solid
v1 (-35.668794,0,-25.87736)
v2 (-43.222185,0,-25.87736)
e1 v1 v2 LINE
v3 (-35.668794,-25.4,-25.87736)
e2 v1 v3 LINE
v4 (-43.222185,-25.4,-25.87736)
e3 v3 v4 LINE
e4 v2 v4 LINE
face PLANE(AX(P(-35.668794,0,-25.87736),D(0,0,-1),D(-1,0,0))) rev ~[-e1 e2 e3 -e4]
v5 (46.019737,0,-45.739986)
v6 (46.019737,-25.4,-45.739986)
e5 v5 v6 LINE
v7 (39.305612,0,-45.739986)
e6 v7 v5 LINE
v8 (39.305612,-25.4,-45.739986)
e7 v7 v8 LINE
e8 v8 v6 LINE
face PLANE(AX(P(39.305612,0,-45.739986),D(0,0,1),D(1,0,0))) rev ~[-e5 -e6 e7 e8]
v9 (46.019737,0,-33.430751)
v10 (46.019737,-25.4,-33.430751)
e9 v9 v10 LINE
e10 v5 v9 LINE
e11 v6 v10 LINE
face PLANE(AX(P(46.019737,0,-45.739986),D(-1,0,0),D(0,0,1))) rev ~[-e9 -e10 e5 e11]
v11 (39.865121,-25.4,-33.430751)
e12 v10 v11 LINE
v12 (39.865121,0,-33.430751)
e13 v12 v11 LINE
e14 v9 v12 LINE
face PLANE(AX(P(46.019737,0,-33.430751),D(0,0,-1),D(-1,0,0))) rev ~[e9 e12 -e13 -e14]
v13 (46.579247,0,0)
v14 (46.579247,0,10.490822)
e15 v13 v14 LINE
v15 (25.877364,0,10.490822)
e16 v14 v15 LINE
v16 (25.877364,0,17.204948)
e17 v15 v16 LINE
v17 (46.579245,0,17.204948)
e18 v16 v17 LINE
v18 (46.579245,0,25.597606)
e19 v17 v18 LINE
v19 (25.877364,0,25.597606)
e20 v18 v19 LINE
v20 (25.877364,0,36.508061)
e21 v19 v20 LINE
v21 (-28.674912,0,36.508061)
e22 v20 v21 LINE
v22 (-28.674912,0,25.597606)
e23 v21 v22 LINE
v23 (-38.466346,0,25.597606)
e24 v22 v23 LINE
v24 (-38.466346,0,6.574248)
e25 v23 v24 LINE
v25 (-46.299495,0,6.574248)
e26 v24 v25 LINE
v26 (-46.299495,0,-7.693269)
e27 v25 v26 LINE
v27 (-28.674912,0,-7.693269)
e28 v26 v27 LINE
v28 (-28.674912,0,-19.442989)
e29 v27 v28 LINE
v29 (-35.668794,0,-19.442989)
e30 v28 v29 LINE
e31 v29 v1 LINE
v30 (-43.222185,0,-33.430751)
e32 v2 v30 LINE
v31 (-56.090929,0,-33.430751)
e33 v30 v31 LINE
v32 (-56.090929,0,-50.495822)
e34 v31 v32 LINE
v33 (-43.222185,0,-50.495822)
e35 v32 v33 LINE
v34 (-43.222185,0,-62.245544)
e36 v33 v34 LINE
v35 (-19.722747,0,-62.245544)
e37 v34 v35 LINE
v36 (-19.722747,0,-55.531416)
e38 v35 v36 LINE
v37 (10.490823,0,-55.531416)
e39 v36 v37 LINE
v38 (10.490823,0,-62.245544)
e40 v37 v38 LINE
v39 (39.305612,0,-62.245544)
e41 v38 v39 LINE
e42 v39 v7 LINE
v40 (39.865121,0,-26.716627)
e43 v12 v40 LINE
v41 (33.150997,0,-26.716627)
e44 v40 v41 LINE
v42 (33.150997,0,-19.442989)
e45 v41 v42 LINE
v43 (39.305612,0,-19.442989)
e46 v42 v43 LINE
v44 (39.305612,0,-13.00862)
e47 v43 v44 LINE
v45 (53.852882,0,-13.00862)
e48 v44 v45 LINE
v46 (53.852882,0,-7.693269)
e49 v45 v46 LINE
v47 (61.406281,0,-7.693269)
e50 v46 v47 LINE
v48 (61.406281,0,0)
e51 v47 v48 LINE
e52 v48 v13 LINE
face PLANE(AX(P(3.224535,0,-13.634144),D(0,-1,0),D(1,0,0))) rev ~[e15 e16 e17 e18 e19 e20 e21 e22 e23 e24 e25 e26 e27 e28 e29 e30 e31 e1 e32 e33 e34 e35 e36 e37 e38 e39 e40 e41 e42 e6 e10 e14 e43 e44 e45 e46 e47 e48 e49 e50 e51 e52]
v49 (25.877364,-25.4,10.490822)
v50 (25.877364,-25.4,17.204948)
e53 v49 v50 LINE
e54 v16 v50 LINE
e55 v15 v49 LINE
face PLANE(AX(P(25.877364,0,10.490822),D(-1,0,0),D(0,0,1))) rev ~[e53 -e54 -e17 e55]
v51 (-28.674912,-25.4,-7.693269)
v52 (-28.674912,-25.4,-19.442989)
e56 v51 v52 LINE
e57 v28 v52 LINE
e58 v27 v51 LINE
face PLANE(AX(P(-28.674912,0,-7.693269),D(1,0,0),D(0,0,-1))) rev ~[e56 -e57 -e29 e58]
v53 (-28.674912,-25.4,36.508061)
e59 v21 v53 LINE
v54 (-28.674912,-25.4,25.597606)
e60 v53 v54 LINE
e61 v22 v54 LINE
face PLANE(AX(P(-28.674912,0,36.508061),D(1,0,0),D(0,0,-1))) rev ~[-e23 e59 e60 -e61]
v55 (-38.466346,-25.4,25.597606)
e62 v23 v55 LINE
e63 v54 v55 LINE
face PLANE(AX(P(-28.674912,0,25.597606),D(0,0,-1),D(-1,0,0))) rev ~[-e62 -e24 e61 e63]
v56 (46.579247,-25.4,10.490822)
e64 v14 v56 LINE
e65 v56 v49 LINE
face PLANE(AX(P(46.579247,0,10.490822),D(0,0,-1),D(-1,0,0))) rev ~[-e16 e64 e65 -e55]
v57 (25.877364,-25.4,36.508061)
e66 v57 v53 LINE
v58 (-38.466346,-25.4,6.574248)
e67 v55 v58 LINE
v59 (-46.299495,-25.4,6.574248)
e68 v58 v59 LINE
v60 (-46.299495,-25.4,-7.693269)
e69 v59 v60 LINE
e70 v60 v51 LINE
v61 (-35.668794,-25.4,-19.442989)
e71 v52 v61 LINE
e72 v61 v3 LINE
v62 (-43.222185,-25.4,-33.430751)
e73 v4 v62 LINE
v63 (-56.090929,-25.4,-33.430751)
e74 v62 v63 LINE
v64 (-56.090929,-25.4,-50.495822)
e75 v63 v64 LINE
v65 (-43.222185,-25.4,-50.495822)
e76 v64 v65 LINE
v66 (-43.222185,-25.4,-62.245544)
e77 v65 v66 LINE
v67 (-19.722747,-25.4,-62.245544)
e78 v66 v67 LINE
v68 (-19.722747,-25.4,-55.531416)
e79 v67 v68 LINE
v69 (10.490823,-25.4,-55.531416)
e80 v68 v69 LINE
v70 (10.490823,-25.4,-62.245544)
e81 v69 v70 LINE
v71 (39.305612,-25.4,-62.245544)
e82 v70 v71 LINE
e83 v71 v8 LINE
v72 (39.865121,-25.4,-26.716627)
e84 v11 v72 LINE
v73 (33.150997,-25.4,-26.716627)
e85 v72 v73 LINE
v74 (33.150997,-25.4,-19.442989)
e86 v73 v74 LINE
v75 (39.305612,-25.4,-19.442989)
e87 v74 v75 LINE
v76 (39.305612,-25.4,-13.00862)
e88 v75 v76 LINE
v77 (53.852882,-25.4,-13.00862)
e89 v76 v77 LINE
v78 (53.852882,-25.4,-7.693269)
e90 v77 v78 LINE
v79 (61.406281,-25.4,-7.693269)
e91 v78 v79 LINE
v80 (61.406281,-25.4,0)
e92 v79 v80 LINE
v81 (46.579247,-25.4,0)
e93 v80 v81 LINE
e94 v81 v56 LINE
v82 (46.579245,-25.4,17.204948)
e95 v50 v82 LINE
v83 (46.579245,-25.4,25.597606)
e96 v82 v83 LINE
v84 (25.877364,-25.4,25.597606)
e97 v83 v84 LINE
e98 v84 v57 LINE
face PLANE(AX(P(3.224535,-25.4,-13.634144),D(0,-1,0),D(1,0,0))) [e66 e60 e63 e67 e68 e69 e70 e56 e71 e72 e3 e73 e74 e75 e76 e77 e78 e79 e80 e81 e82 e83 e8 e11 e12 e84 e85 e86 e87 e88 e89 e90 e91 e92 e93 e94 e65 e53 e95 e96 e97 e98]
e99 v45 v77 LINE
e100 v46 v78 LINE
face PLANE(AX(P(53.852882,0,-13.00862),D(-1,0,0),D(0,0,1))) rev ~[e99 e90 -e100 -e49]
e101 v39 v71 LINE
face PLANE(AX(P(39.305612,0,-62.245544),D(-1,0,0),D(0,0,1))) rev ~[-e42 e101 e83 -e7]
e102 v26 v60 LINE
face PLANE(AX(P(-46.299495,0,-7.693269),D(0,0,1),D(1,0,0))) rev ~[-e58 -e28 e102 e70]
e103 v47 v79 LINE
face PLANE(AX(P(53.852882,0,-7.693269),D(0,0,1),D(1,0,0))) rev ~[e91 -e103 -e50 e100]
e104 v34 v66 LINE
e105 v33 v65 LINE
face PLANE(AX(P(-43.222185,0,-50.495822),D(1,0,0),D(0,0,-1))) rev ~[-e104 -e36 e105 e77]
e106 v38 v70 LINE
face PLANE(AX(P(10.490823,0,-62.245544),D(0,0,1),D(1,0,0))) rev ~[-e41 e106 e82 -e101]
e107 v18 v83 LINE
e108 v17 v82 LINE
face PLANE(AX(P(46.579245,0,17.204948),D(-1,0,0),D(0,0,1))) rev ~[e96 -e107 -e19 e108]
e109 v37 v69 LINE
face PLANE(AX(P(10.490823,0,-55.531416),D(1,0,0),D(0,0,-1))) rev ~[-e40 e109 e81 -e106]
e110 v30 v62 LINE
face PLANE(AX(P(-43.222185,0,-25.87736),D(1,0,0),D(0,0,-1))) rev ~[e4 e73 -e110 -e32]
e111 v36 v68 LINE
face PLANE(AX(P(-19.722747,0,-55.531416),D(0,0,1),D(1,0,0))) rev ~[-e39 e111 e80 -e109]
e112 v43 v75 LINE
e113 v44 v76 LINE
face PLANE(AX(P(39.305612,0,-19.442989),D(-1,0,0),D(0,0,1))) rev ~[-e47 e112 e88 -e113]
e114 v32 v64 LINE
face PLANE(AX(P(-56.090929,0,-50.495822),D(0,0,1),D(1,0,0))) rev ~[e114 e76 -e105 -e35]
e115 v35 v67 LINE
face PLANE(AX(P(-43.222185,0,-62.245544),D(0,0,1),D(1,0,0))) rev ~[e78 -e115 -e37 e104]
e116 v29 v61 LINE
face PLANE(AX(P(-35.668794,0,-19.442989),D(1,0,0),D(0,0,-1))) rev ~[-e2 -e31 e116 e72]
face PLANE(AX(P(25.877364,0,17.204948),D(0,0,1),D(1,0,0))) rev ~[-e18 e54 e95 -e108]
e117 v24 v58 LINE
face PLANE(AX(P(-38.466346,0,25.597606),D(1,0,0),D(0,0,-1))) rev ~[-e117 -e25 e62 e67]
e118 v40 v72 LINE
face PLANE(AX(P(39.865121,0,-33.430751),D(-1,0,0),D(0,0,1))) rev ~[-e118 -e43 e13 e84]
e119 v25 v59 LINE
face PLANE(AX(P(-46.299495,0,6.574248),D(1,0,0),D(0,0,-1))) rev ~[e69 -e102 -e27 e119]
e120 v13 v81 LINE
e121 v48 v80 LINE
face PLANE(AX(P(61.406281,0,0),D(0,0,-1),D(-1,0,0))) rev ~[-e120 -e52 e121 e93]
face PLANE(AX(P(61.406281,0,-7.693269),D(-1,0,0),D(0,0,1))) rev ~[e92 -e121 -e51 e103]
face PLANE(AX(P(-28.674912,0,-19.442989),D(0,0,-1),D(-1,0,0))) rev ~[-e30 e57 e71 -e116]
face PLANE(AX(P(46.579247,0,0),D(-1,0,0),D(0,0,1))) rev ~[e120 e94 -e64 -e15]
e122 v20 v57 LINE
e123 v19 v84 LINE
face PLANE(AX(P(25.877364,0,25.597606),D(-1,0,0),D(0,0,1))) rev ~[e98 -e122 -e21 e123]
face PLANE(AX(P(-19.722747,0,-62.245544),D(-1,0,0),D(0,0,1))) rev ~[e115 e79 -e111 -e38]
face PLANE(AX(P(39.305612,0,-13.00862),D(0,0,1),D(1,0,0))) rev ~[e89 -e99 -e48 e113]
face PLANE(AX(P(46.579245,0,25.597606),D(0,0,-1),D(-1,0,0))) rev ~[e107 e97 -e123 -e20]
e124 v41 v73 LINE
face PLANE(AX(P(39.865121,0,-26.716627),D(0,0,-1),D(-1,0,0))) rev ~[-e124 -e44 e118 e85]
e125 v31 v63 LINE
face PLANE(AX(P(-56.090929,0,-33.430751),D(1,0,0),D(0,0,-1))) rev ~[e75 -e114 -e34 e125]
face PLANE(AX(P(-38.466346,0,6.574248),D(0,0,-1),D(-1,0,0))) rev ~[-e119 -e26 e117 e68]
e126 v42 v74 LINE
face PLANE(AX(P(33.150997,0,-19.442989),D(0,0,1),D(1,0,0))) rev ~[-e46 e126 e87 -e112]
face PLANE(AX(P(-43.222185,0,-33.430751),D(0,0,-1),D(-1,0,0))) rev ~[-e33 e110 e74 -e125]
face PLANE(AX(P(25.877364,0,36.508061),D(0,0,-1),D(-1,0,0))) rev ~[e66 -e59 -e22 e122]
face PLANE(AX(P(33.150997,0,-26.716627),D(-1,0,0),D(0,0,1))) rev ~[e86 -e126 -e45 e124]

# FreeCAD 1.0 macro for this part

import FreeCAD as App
import Part
import Sketcher


def add_polygon(sketch, points):
    """Adds a closed chain of lines whose ends are joined by coincident constraints."""
    first, n = sketch.GeometryCount, len(points)
    for a, b in zip(points, points[1:] + points[:1]):
        sketch.addGeometry(Part.LineSegment(App.Vector(*a, 0), App.Vector(*b, 0)), False)
    for i in range(n):
        sketch.addConstraint(Sketcher.Constraint("Coincident", first + i, 2, first + (i + 1) % n, 1))

doc = App.newDocument("Part")
params = doc.addObject("Spreadsheet::Sheet", "Params")
for row, (alias, value) in enumerate([
    ("pad1_length", "1 in"),
], start=1):
    params.set(f"A{row}", alias)
    params.set(f"B{row}", "=" + value)
    params.setAlias(f"B{row}", alias)

body = doc.addObject("PartDesign::Body", "Body")

sketch1 = doc.addObject("Sketcher::SketchObject", "Sketch")
body.addObject(sketch1)
sketch1.AttachmentSupport = (doc.XZ_Plane, [""])
sketch1.MapMode = "FlatFace"
add_polygon(sketch1, [(-29, 26), (-38, 26), (-38, 7), (-46, 7), (-46, -8), (-29, -8), (-29, -19), (-36, -19), (-36, -26), (-43, -26), (-43, -33), (-56, -33), (-56, -50), (-43, -50), (-43, -62), (-20, -62), (-20, -56), (10, -56), (10, -62), (39, -62), (39, -46), (46, -46), (46, -33), (40, -33), (40, -27), (33, -27), (33, -19), (39, -19), (39, -13), (54, -13), (54, -8), (61, -8), (61, 0), (47, 0), (47, 10), (26, 10), (26, 17), (47, 17), (47, 26), (26, 26), (26, 37), (-29, 37)])
sketch1.addConstraint(Sketcher.Constraint("Horizontal", 0))
sketch1.addConstraint(Sketcher.Constraint("Vertical", 1))
sketch1.addConstraint(Sketcher.Constraint("Horizontal", 2))
sketch1.addConstraint(Sketcher.Constraint("Vertical", 3))
sketch1.addConstraint(Sketcher.Constraint("Horizontal", 4))
sketch1.addConstraint(Sketcher.Constraint("Vertical", 5))
sketch1.addConstraint(Sketcher.Constraint("Horizontal", 6))
sketch1.addConstraint(Sketcher.Constraint("Vertical", 7))
sketch1.addConstraint(Sketcher.Constraint("Horizontal", 8))
sketch1.addConstraint(Sketcher.Constraint("Vertical", 9))
sketch1.addConstraint(Sketcher.Constraint("Horizontal", 10))
sketch1.addConstraint(Sketcher.Constraint("Vertical", 11))
sketch1.addConstraint(Sketcher.Constraint("Horizontal", 12))
sketch1.addConstraint(Sketcher.Constraint("Vertical", 13))
sketch1.addConstraint(Sketcher.Constraint("Horizontal", 14))
sketch1.addConstraint(Sketcher.Constraint("Vertical", 15))
sketch1.addConstraint(Sketcher.Constraint("Horizontal", 16))
sketch1.addConstraint(Sketcher.Constraint("Vertical", 17))
sketch1.addConstraint(Sketcher.Constraint("Horizontal", 18))
sketch1.addConstraint(Sketcher.Constraint("Vertical", 19))
sketch1.addConstraint(Sketcher.Constraint("Horizontal", 20))
sketch1.addConstraint(Sketcher.Constraint("Vertical", 21))
sketch1.addConstraint(Sketcher.Constraint("Horizontal", 22))
sketch1.addConstraint(Sketcher.Constraint("Vertical", 23))
sketch1.addConstraint(Sketcher.Constraint("Horizontal", 24))
sketch1.addConstraint(Sketcher.Constraint("Vertical", 25))
sketch1.addConstraint(Sketcher.Constraint("Horizontal", 26))
sketch1.addConstraint(Sketcher.Constraint("Vertical", 27))
sketch1.addConstraint(Sketcher.Constraint("Horizontal", 28))
sketch1.addConstraint(Sketcher.Constraint("Vertical", 29))
sketch1.addConstraint(Sketcher.Constraint("Horizontal", 30))
sketch1.addConstraint(Sketcher.Constraint("Vertical", 31))
sketch1.addConstraint(Sketcher.Constraint("Horizontal", 32))
sketch1.addConstraint(Sketcher.Constraint("Vertical", 33))
sketch1.addConstraint(Sketcher.Constraint("Horizontal", 34))
sketch1.addConstraint(Sketcher.Constraint("Vertical", 35))
sketch1.addConstraint(Sketcher.Constraint("Horizontal", 36))
sketch1.addConstraint(Sketcher.Constraint("Vertical", 37))
sketch1.addConstraint(Sketcher.Constraint("Horizontal", 38))
sketch1.addConstraint(Sketcher.Constraint("Vertical", 39))
sketch1.addConstraint(Sketcher.Constraint("Horizontal", 40))
sketch1.addConstraint(Sketcher.Constraint("Vertical", 41))
sketch1.addConstraint(Sketcher.Constraint("PointOnObject", 31, 2, -1))
sketch1.addConstraint(Sketcher.Constraint("Horizontal", 14, 2, 17, 2))
sketch1.addConstraint(Sketcher.Constraint("Horizontal", 10, 2, 21, 2))
sketch1.addConstraint(Sketcher.Constraint("Horizontal", 6, 2, 25, 2))
sketch1.addConstraint(Sketcher.Constraint("Horizontal", 4, 2, 29, 2))
sketch1.addConstraint(Sketcher.Constraint("Horizontal", 0, 2, 37, 2))
sketch1.addConstraint(Sketcher.Constraint("Vertical", 9, 2, 12, 2))
sketch1.addConstraint(Sketcher.Constraint("Vertical", 19, 2, 26, 2))
sketch1.addConstraint(Sketcher.Constraint("Vertical", 35, 2, 38, 2))
sketch1.addConstraint(Sketcher.Constraint("Vertical", 5, 2, 40, 2))
sketch1.addConstraint(Sketcher.Constraint("Equal", 20, 24))
sketch1.addConstraint(Sketcher.Constraint("Equal", 8, 9))
sketch1.addConstraint(Sketcher.Constraint("Equal", 24, 23))
sketch1.addConstraint(Sketcher.Constraint("Equal", 7, 27))
sketch1.addConstraint(Sketcher.Constraint("Equal", 24, 35))
sketch1.addConstraint(Sketcher.Constraint("DistanceX", 30, 1, 30, 2, 7.553399))
sketch1.addConstraint(Sketcher.Constraint("DistanceX", 2, 2, 2, 1, 7.833149))
sketch1.addConstraint(Sketcher.Constraint("DistanceX", 6, 2, 6, 1, 6.993882))
sketch1.addConstraint(Sketcher.Constraint("DistanceX", 8, 2, 8, 1, 7.553391))
sketch1.addConstraint(Sketcher.Constraint("DistanceX", 14, 1, 14, 2, 23.499438))
sketch1.addConstraint(Sketcher.Constraint("DistanceX", 16, 1, 16, 2, 30.21357))
sketch1.addConstraint(Sketcher.Constraint("DistanceX", 18, 1, 18, 2, 28.814789))
sketch1.addConstraint(Sketcher.Constraint("DistanceX", 28, 1, 28, 2, 14.54727))
sketch1.addConstraint(Sketcher.Constraint("DistanceX", 36, 1, 36, 2, 20.701881))
sketch1.addConstraint(Sketcher.Constraint("DistanceY", 5, 2, 5, 1, 11.74972))
sketch1.addConstraint(Sketcher.Constraint("DistanceY", 7, 2, 7, 1, 6.434371))
sketch1.addConstraint(Sketcher.Constraint("DistanceY", 11, 2, 11, 1, 17.065071))
sketch1.addConstraint(Sketcher.Constraint("DistanceY", 15, 1, 15, 2, 6.714128))
sketch1.addConstraint(Sketcher.Constraint("DistanceY", 19, 1, 19, 2, 16.505558))
sketch1.addConstraint(Sketcher.Constraint("DistanceY", 31, 1, 31, 2, 7.693269))
sketch1.addConstraint(Sketcher.Constraint("DistanceX", 3, 2, 6, 2, 10.630701))
sketch1.addConstraint(Sketcher.Constraint("DistanceX", 16, 2, 22, 2, 29.374298))
sketch1.addConstraint(Sketcher.Constraint("DistanceX", 10, 2, 10, 1, 12.868744))
sketch1.addConstraint(Sketcher.Constraint("DistanceX", 20, 1, 20, 2, 6.714125))
sketch1.addConstraint(Sketcher.Constraint("DistanceX", 32, 2, 32, 1, 14.827034))
sketch1.addConstraint(Sketcher.Constraint("DistanceX", 34, 2, 34, 1, 20.701883))
sketch1.addConstraint(Sketcher.Constraint("DistanceY", 1, 2, 1, 1, 19.023358))
sketch1.addConstraint(Sketcher.Constraint("DistanceY", 3, 2, 3, 1, 14.267517))
sketch1.addConstraint(Sketcher.Constraint("DistanceY", 13, 2, 13, 1, 11.749722))
sketch1.addConstraint(Sketcher.Constraint("DistanceY", 33, 1, 33, 2, 10.490822))
sketch1.addConstraint(Sketcher.Constraint("DistanceY", 39, 1, 39, 2, 10.910455))
sketch1.addConstraint(Sketcher.Constraint("DistanceX", 4, 2, -1, 1, 28.674912))
pad1 = doc.addObject("PartDesign::Pad", "Pad")
body.addObject(pad1)
pad1.Profile = sketch1
pad1.setExpression("Length", "Params.pad1_length")

doc.recompute()
